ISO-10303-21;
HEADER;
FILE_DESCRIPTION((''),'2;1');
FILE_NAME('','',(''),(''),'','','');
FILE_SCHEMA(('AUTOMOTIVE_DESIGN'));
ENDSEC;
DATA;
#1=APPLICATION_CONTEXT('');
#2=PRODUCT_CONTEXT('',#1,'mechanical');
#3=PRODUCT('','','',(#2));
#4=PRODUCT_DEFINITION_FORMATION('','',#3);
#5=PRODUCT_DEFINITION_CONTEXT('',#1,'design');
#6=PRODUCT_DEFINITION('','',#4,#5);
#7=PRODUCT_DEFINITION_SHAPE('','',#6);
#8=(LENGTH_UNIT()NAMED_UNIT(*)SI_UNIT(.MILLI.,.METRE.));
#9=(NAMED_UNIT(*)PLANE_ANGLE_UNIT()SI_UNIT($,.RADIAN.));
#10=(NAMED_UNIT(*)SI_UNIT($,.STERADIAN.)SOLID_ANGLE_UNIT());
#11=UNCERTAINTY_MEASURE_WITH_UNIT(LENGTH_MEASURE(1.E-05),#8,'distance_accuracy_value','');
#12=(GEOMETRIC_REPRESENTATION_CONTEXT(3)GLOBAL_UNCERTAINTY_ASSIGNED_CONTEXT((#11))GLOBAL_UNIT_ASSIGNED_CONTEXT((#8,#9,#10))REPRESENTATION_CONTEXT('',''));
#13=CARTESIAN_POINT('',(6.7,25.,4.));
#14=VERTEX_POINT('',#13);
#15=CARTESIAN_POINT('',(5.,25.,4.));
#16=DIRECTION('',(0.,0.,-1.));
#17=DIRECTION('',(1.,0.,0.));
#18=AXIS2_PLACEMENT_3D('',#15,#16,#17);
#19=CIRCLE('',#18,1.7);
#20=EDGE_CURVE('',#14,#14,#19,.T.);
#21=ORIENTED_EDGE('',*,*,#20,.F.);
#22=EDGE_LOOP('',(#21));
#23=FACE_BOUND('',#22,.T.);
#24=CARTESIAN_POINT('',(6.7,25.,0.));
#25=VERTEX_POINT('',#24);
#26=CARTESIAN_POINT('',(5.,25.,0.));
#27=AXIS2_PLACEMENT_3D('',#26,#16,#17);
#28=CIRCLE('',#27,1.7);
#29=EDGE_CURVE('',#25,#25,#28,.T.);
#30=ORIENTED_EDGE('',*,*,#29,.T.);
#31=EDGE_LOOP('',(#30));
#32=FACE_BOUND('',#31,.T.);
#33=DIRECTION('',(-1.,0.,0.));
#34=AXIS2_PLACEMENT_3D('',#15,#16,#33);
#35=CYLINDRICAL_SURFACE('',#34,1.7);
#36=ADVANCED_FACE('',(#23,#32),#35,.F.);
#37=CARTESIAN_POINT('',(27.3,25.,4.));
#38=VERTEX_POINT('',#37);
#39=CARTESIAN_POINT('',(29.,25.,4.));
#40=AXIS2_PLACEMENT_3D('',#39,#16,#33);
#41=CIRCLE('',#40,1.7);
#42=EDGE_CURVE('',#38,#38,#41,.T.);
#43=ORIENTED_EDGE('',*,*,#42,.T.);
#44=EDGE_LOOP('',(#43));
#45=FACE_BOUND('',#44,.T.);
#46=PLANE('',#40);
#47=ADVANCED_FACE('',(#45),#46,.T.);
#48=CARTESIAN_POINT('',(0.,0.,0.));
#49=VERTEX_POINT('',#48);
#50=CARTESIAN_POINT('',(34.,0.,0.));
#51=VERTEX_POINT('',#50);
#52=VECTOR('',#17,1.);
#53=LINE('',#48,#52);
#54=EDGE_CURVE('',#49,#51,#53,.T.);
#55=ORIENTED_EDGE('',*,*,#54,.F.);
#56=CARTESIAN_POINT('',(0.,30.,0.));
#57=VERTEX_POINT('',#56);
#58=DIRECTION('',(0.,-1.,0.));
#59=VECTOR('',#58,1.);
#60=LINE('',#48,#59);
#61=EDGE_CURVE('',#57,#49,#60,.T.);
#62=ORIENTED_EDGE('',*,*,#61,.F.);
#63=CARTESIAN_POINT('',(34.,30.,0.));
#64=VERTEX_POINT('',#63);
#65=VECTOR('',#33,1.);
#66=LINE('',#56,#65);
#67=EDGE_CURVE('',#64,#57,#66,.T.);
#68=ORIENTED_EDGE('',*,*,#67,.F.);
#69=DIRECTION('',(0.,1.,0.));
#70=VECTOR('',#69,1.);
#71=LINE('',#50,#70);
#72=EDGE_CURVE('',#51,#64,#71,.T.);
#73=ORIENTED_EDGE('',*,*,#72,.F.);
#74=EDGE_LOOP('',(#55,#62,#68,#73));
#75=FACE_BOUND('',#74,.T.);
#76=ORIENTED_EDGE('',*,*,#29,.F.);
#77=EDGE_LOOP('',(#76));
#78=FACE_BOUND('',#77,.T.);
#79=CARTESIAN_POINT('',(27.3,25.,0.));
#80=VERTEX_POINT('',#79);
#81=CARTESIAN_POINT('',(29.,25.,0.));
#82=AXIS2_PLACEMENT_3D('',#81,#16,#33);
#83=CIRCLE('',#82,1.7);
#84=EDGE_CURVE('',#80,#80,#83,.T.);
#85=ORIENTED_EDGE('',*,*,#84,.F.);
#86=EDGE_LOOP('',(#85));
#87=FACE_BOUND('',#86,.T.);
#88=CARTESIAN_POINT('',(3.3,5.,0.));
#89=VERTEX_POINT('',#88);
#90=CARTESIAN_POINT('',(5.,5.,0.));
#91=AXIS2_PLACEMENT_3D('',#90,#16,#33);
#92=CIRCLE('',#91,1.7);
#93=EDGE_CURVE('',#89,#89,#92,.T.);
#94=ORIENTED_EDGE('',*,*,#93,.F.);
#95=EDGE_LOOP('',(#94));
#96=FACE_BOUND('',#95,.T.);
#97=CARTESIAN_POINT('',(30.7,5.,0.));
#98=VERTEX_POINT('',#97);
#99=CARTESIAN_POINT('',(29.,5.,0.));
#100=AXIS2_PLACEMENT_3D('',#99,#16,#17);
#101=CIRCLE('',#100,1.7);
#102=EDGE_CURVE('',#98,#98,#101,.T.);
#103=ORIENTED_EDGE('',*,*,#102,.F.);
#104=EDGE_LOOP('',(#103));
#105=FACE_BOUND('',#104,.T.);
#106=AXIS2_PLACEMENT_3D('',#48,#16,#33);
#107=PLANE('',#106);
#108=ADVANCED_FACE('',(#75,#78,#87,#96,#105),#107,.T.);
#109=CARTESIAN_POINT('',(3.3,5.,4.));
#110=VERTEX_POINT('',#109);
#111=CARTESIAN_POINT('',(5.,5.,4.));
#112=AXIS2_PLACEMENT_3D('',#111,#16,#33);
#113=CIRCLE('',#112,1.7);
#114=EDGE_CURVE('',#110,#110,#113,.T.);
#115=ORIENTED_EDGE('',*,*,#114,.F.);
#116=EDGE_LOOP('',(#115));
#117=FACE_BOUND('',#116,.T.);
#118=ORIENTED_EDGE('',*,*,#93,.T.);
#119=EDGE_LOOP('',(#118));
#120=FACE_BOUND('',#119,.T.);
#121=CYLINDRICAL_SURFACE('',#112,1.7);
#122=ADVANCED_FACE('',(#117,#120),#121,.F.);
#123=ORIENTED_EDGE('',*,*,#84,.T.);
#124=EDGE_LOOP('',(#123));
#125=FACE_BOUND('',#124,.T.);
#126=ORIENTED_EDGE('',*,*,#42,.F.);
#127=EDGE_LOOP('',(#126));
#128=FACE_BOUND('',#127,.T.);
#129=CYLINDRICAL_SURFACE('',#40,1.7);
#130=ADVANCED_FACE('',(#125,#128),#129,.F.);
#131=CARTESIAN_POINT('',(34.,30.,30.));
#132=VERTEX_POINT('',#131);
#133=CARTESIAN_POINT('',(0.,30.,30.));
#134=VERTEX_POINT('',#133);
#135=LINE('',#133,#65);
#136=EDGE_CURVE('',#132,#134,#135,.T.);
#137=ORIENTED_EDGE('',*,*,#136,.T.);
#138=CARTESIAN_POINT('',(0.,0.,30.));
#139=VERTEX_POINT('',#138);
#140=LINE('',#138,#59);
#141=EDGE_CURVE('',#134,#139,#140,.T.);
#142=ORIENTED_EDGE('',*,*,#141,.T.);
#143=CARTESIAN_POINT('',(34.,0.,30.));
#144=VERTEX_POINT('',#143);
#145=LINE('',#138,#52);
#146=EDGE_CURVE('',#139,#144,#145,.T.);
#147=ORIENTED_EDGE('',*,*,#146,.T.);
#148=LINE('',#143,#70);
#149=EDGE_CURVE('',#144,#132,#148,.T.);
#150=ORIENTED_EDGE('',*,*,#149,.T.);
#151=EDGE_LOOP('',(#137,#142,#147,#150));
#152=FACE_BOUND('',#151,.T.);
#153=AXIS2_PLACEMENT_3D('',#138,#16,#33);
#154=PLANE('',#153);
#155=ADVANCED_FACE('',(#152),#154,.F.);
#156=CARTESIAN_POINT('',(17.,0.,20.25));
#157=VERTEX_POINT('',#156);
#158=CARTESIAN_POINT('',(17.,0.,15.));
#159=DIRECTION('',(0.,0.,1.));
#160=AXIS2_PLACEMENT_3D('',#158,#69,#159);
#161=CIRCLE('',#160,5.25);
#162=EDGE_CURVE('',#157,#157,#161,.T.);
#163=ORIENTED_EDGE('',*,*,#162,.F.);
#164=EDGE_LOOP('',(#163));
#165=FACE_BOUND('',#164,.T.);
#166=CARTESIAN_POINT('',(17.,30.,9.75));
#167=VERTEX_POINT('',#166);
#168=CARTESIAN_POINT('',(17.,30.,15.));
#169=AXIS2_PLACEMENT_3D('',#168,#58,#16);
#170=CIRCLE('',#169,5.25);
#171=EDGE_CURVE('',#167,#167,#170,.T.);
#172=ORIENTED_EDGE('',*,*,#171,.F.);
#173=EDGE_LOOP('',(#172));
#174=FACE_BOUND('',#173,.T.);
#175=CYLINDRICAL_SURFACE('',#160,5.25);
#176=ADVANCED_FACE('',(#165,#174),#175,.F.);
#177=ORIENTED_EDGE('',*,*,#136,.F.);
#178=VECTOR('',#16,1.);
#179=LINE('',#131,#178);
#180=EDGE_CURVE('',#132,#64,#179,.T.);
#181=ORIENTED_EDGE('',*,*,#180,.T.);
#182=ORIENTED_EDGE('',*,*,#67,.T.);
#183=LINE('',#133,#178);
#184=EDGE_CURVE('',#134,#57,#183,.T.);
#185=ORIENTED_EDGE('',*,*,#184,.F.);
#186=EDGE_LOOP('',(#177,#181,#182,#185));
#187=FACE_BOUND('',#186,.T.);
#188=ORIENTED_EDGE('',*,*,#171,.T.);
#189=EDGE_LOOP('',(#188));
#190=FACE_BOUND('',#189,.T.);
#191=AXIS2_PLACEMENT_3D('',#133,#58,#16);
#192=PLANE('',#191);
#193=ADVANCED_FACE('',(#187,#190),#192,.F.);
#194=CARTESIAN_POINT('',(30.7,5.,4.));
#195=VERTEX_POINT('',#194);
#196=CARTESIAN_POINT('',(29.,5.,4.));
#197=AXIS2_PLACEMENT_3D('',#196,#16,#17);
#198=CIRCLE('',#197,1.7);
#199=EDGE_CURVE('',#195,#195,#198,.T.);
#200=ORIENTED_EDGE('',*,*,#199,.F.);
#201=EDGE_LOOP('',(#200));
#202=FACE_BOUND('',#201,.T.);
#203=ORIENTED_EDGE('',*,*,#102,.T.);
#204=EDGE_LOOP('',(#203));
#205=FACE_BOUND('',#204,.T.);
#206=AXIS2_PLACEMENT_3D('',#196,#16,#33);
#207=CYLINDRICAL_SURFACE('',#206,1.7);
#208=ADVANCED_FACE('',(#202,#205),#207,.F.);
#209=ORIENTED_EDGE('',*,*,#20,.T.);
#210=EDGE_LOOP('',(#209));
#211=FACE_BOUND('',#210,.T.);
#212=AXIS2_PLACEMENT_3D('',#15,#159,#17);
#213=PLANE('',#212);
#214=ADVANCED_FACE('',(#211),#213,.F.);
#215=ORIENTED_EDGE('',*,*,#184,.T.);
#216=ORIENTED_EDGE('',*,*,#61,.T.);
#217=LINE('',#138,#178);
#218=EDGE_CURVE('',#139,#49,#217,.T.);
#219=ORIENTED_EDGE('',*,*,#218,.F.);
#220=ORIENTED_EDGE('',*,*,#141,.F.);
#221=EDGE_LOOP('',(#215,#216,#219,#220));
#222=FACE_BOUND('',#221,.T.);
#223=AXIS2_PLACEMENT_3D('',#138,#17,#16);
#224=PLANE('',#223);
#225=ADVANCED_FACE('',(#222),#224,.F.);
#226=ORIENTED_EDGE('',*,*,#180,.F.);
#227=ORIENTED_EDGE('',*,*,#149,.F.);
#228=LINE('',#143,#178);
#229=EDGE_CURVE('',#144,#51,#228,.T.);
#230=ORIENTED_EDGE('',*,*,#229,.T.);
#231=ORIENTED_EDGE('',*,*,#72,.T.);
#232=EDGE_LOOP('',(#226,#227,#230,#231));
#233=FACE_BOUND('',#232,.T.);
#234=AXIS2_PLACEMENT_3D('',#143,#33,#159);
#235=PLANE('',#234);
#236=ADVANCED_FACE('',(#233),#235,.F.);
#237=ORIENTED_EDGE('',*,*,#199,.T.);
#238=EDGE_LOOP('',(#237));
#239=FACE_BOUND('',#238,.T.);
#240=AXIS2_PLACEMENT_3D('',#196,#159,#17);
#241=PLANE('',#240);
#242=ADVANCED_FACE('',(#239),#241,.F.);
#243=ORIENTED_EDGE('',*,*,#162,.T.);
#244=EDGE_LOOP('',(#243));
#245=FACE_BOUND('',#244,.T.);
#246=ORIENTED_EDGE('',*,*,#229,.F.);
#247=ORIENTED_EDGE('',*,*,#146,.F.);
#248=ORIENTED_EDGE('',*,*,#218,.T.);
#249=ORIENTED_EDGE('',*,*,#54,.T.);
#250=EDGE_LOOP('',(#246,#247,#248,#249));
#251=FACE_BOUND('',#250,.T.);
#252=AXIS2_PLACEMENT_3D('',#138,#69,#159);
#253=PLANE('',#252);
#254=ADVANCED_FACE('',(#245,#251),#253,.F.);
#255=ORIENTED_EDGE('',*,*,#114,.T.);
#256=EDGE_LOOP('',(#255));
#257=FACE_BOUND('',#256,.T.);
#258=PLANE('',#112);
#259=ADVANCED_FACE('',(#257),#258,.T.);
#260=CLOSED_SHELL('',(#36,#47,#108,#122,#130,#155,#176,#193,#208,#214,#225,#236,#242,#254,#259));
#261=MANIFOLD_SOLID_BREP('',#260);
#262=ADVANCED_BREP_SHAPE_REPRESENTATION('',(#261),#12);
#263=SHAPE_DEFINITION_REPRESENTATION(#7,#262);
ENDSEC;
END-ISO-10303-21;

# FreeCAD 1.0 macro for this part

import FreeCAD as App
import Part
import Sketcher
Q = App.Units.Quantity


def add_polygon(sketch, points):
    """Adds a closed chain of lines whose ends are joined by coincident constraints."""
    first, n = sketch.GeometryCount, len(points)
    for a, b in zip(points, points[1:] + points[:1]):
        sketch.addGeometry(Part.LineSegment(App.Vector(*a, 0), App.Vector(*b, 0)), False)
    for i in range(n):
        sketch.addConstraint(Sketcher.Constraint("Coincident", first + i, 2, first + (i + 1) % n, 1))

doc = App.newDocument("Part")
body = doc.addObject("PartDesign::Body", "Body")

sketch1 = doc.addObject("Sketcher::SketchObject", "Sketch")
body.addObject(sketch1)
sketch1.AttachmentSupport = (doc.XY_Plane, [""])
sketch1.MapMode = "FlatFace"
add_polygon(sketch1, [(0, 30), (0, 0), (34, 0), (34, 30)])
sketch1.addConstraint([
    Sketcher.Constraint("Vertical", 0),
    Sketcher.Constraint("Horizontal", 1),
    Sketcher.Constraint("Vertical", 2),
    Sketcher.Constraint("Horizontal", 3),
    Sketcher.Constraint("Coincident", 0, 2, -1, 1),
    Sketcher.Constraint("DistanceX", 1, 1, 1, 2, Q("34 mm")),
    Sketcher.Constraint("DistanceY", 0, 2, 0, 1, Q("30 mm")),
])
pad1 = doc.addObject("PartDesign::Pad", "Pad")
body.addObject(pad1)
pad1.Profile = sketch1
pad1.Length = 30

sketch2 = doc.addObject("Sketcher::SketchObject", "Sketch001")
body.addObject(sketch2)
sketch2.AttachmentSupport = (doc.XZ_Plane, [""])
sketch2.MapMode = "FlatFace"
sketch2.AttachmentOffset = App.Placement(App.Vector(0, 0, -30), App.Rotation())
sketch2.addGeometry(Part.Circle(App.Vector(17, 15, 0), App.Vector(0, 0, 1), 5.25), False)
sketch2.addConstraint([
    Sketcher.Constraint("Diameter", 0, Q("10.5 mm")),
    Sketcher.Constraint("DistanceX", -1, 1, 0, 3, Q("17 mm")),
    Sketcher.Constraint("DistanceY", -1, 1, 0, 3, Q("15 mm")),
])
pocket1 = doc.addObject("PartDesign::Pocket", "Pocket")
body.addObject(pocket1)
pocket1.Profile = sketch2
pocket1.Type = "ThroughAll"
pocket1.Midplane = True

sketch3 = doc.addObject("Sketcher::SketchObject", "Sketch002")
body.addObject(sketch3)
sketch3.AttachmentSupport = (doc.XY_Plane, [""])
sketch3.MapMode = "FlatFace"
sketch3.addGeometry([
    Part.Circle(App.Vector(29, 25, 0), App.Vector(0, 0, 1), 1.7),
    Part.Circle(App.Vector(29, 5, 0), App.Vector(0, 0, 1), 1.7),
    Part.Circle(App.Vector(5, 5, 0), App.Vector(0, 0, 1), 1.7),
    Part.Circle(App.Vector(5, 25, 0), App.Vector(0, 0, 1), 1.7),
], False)
sketch3.addConstraint([
    Sketcher.Constraint("Equal", 0, 1),
    Sketcher.Constraint("Equal", 1, 2),
    Sketcher.Constraint("Equal", 2, 3),
    Sketcher.Constraint("Horizontal", 1, 3, 2, 3),
    Sketcher.Constraint("Horizontal", 0, 3, 3, 3),
    Sketcher.Constraint("Vertical", 0, 3, 1, 3),
    Sketcher.Constraint("Vertical", 2, 3, 3, 3),
    Sketcher.Constraint("Diameter", 0, Q("3.4 mm")),
    Sketcher.Constraint("DistanceX", -1, 1, 0, 3, Q("29 mm")),
    Sketcher.Constraint("DistanceY", -1, 1, 0, 3, Q("25 mm")),
    Sketcher.Constraint("DistanceY", -1, 1, 1, 3, Q("5 mm")),
    Sketcher.Constraint("DistanceX", -1, 1, 2, 3, Q("5 mm")),
])
pocket2 = doc.addObject("PartDesign::Pocket", "Pocket001")
body.addObject(pocket2)
pocket2.Profile = sketch3
pocket2.Length = 4
pocket2.Reversed = True

doc.recompute()
